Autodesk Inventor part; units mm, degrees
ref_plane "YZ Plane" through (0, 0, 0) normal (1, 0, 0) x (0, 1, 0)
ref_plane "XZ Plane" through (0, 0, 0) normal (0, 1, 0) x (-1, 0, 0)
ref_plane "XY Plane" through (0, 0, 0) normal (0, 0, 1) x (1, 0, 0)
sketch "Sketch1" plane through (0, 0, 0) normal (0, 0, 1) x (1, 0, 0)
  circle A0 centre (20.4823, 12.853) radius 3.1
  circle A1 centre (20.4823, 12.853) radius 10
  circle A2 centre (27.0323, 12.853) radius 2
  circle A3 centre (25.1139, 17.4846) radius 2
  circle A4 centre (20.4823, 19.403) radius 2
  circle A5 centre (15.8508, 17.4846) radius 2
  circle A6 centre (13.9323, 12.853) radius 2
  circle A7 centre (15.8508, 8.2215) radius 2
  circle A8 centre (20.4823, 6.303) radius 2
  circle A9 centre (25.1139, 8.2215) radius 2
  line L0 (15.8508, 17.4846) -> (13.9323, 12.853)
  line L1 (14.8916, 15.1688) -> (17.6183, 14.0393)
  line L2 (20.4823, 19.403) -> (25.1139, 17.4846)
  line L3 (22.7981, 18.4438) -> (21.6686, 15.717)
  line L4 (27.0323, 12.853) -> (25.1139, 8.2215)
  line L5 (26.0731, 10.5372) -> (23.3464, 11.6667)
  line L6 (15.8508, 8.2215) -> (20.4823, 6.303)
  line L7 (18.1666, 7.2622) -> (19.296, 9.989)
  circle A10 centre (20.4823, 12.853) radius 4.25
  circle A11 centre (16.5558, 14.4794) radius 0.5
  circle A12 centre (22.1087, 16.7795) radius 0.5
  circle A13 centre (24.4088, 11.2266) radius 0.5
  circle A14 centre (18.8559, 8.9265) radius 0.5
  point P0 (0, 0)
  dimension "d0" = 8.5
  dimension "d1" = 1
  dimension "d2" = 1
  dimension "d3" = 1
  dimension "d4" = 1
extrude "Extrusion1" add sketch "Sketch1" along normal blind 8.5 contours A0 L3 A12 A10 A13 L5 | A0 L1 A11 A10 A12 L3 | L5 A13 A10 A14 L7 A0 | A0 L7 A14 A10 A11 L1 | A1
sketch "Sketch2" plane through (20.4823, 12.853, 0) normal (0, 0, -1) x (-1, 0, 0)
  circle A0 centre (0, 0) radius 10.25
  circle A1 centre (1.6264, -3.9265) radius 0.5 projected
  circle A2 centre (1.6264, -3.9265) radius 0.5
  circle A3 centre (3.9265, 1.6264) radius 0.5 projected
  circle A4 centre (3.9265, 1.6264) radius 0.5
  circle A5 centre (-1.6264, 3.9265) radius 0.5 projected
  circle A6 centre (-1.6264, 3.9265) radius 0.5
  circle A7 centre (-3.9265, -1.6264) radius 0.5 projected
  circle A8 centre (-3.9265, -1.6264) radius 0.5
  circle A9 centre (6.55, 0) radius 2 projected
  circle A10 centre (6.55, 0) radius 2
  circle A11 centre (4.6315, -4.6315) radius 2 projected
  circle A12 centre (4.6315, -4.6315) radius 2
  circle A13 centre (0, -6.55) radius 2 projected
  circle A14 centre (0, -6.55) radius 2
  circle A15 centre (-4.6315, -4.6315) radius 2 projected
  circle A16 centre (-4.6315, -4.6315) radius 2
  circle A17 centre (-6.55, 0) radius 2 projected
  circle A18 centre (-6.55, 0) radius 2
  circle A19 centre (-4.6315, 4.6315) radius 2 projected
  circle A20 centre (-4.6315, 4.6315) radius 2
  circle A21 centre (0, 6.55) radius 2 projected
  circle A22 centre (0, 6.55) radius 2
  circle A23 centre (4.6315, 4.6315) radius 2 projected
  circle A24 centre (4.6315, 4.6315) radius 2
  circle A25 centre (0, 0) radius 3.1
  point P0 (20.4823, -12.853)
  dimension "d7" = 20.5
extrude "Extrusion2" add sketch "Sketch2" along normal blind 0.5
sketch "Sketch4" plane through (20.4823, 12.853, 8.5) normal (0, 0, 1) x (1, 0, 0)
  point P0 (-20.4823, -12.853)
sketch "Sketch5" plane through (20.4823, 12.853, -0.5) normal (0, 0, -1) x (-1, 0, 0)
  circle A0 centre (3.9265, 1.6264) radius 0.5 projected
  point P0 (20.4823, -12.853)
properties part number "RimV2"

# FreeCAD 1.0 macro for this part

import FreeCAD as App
import Part
import Sketcher
from FreeCAD import Vector
Q = App.Units.Quantity

doc = App.newDocument("Part")
params = doc.addObject("Spreadsheet::Sheet", "Params")
for row, (alias, value) in enumerate([
    ("sketch1_diameter", "1 mm"),
    ("sketch1_diameter2", "20 mm"),
    ("sketch1_diameter3", "4 mm"),
    ("sketch1_diameter4", "6.2 mm"),
    ("pad1_length", "8.5 mm"),
    ("sketch2_diameter", "20.5 mm"),
    ("sketch2_diameter2", "4 mm"),
    ("sketch2_diameter3", "1 mm"),
    ("sketch2_diameter4", "6.2 mm"),
    ("pad2_length", "0.5 mm"),
], start=1):
    params.set(f"A{row}", alias)
    params.set(f"B{row}", "=" + value)
    params.setAlias(f"B{row}", alias)

body = doc.addObject("PartDesign::Body", "Body")

# Sketch on XY plane
sketch1 = body.newObject("Sketcher::SketchObject", "Sketch")
sketch1.AttachmentSupport = (doc.getObject("XY_Plane"), [""])
sketch1.MapMode = "FlatFace"
sketch1.addGeometry([
    Part.Circle(Vector(20.5, 12.9, 0), Vector(0, 0, 1), 10),  # 0
    Part.Circle(Vector(20.5, 12.9, 0), Vector(0, 0, 1), 3.1),  # 1
    Part.Circle(Vector(22.1, 16.8, 0), Vector(0, 0, 1), 0.5),  # 2
    Part.Circle(Vector(24.4, 11.2, 0), Vector(0, 0, 1), 0.5),  # 3
    Part.Circle(Vector(16.6, 14.5, 0), Vector(0, 0, 1), 0.5),  # 4
    Part.Circle(Vector(15.9, 8.2, 0), Vector(0, 0, 1), 2),  # 5
    Part.Circle(Vector(20.5, 6.3, 0), Vector(0, 0, 1), 2),  # 6
    Part.Circle(Vector(25.1, 8.2, 0), Vector(0, 0, 1), 2),  # 7
    Part.Circle(Vector(13.9, 12.9, 0), Vector(0, 0, 1), 2),  # 8
    Part.Circle(Vector(15.9, 17.5, 0), Vector(0, 0, 1), 2),  # 9
    Part.Circle(Vector(18.9, 8.9, 0), Vector(0, 0, 1), 0.5),  # 10
    Part.Circle(Vector(25.1, 17.5, 0), Vector(0, 0, 1), 2),  # 11
    Part.Circle(Vector(27, 12.9, 0), Vector(0, 0, 1), 2),  # 12
    Part.Circle(Vector(20.5, 19.4, 0), Vector(0, 0, 1), 2),  # 13
], False)
sketch1.addConstraint([
    Sketcher.Constraint("Coincident", 1, 3, 0, 3),
    Sketcher.Constraint("Equal", 2, 3),
    Sketcher.Constraint("Equal", 3, 4),
    Sketcher.Constraint("Equal", 5, 6),
    Sketcher.Constraint("Equal", 6, 7),
    Sketcher.Constraint("Equal", 7, 8),
    Sketcher.Constraint("Equal", 8, 9),
    Sketcher.Constraint("Equal", 4, 10),
    Sketcher.Constraint("Equal", 9, 11),
    Sketcher.Constraint("Equal", 11, 12),
    Sketcher.Constraint("Equal", 12, 13),
    Sketcher.Constraint("Horizontal", 5, 3, 7, 3),
    Sketcher.Constraint("Horizontal", 1, 3, 8, 3),
    Sketcher.Constraint("Horizontal", 9, 3, 11, 3),
    Sketcher.Constraint("Horizontal", 8, 3, 12, 3),
    Sketcher.Constraint("Vertical", 1, 3, 6, 3),
    Sketcher.Constraint("Vertical", 5, 3, 9, 3),
    Sketcher.Constraint("Vertical", 7, 3, 11, 3),
    Sketcher.Constraint("Vertical", 6, 3, 13, 3),
    Sketcher.Constraint("Diameter", 2, Q("1 mm")),
    Sketcher.Constraint("Diameter", 0, Q("20 mm")),
    Sketcher.Constraint("Diameter", 5, Q("4 mm")),
    Sketcher.Constraint("Diameter", 1, Q("6.2 mm")),
    Sketcher.Constraint("DistanceX", 2, 3, 3, 3, Q("2.3 mm")),
    Sketcher.Constraint("DistanceY", 4, 3, 2, 3, Q("2.3 mm")),
    Sketcher.Constraint("DistanceX", 4, 3, 10, 3, Q("2.3 mm")),
    Sketcher.Constraint("DistanceY", 6, 3, 0, 3, Q("6.55 mm")),
    Sketcher.Constraint("DistanceX", 8, 3, 0, 3, Q("6.55 mm")),
    Sketcher.Constraint("DistanceX", 0, 3, 12, 3, Q("6.55 mm")),
    Sketcher.Constraint("DistanceY", 0, 3, 13, 3, Q("6.55 mm")),
    Sketcher.Constraint("DistanceY", -1, 1, 0, 3, Q("12.853 mm")),
    Sketcher.Constraint("DistanceX", -1, 1, 7, 3, Q("25.114 mm")),
    Sketcher.Constraint("DistanceX", -1, 1, 10, 3, Q("18.856 mm")),
    Sketcher.Constraint("DistanceY", 3, 3, 2, 3, Q("5.553 mm")),
    Sketcher.Constraint("DistanceX", 4, 3, 2, 3, Q("5.553 mm")),
    Sketcher.Constraint("DistanceX", 5, 3, 4, 3, Q("0.705 mm")),
    Sketcher.Constraint("DistanceY", 5, 3, 4, 3, Q("6.258 mm")),
    Sketcher.Constraint("DistanceY", 2, 3, 9, 3, Q("0.705 mm")),
    Sketcher.Constraint("DistanceY", 5, 3, 10, 3, Q("0.705 mm")),
    Sketcher.Constraint("DistanceX", -1, 1, 0, 3, Q("20.4823 mm")),
    Sketcher.Constraint("DistanceY", -1, 1, 2, 3, Q("16.7795 mm")),
])
sketch1.setExpression("Constraints[19]", "Params.sketch1_diameter")
sketch1.setExpression("Constraints[20]", "Params.sketch1_diameter2")
sketch1.setExpression("Constraints[21]", "Params.sketch1_diameter3")
sketch1.setExpression("Constraints[22]", "Params.sketch1_diameter4")
pad1 = body.newObject("PartDesign::Pad", "Pad")
pad1.Profile = sketch1
pad1.setExpression("Length", "Params.pad1_length")

# Sketch on XY plane
sketch2 = body.newObject("Sketcher::SketchObject", "Sketch001")
sketch2.AttachmentSupport = (doc.getObject("XY_Plane"), [""])
sketch2.MapMode = "FlatFace"
sketch2.addGeometry([
    Part.Circle(Vector(20.5, 12.9, 0), Vector(0, 0, 1), 10.2),  # 0
    Part.Circle(Vector(25.1, 8.2, 0), Vector(0, 0, 1), 2),  # 1
    Part.Circle(Vector(24.4, 11.2, 0), Vector(0, 0, 1), 0.5),  # 2
    Part.Circle(Vector(20.5, 6.3, 0), Vector(0, 0, 1), 2),  # 3
    Part.Circle(Vector(18.9, 8.9, 0), Vector(0, 0, 1), 0.5),  # 4
    Part.Circle(Vector(15.9, 8.2, 0), Vector(0, 0, 1), 2),  # 5
    Part.Circle(Vector(27, 12.9, 0), Vector(0, 0, 1), 2),  # 6
    Part.Circle(Vector(25.1, 17.5, 0), Vector(0, 0, 1), 2),  # 7
    Part.Circle(Vector(22.1, 16.8, 0), Vector(0, 0, 1), 0.5),  # 8
    Part.Circle(Vector(20.5, 12.9, 0), Vector(0, 0, 1), 3.1),  # 9
    Part.Circle(Vector(16.6, 14.5, 0), Vector(0, 0, 1), 0.5),  # 10
    Part.Circle(Vector(15.9, 17.5, 0), Vector(0, 0, 1), 2),  # 11
    Part.Circle(Vector(13.9, 12.9, 0), Vector(0, 0, 1), 2),  # 12
    Part.Circle(Vector(20.5, 19.4, 0), Vector(0, 0, 1), 2),  # 13
], False)
sketch2.addConstraint([
    Sketcher.Constraint("Coincident", 9, 3, 0, 3),
    Sketcher.Constraint("Equal", 1, 3),
    Sketcher.Constraint("Equal", 2, 4),
    Sketcher.Constraint("Equal", 3, 5),
    Sketcher.Constraint("Equal", 5, 6),
    Sketcher.Constraint("Equal", 6, 7),
    Sketcher.Constraint("Equal", 4, 8),
    Sketcher.Constraint("Equal", 8, 10),
    Sketcher.Constraint("Equal", 7, 11),
    Sketcher.Constraint("Equal", 11, 12),
    Sketcher.Constraint("Equal", 12, 13),
    Sketcher.Constraint("Horizontal", 1, 3, 5, 3),
    Sketcher.Constraint("Horizontal", 0, 3, 6, 3),
    Sketcher.Constraint("Horizontal", 7, 3, 11, 3),
    Sketcher.Constraint("Horizontal", 9, 3, 12, 3),
    Sketcher.Constraint("Vertical", 0, 3, 3, 3),
    Sketcher.Constraint("Vertical", 1, 3, 7, 3),
    Sketcher.Constraint("Vertical", 5, 3, 11, 3),
    Sketcher.Constraint("Vertical", 9, 3, 13, 3),
    Sketcher.Constraint("Diameter", 0, Q("20.5 mm")),
    Sketcher.Constraint("Diameter", 1, Q("4 mm")),
    Sketcher.Constraint("Diameter", 2, Q("1 mm")),
    Sketcher.Constraint("Diameter", 9, Q("6.2 mm")),
    Sketcher.Constraint("DistanceY", 4, 3, 2, 3, Q("2.3 mm")),
    Sketcher.Constraint("DistanceX", 8, 3, 2, 3, Q("2.3 mm")),
    Sketcher.Constraint("DistanceY", 10, 3, 8, 3, Q("2.3 mm")),
    Sketcher.Constraint("DistanceX", 10, 3, 4, 3, Q("2.3 mm")),
    Sketcher.Constraint("DistanceY", 3, 3, 0, 3, Q("6.55 mm")),
    Sketcher.Constraint("DistanceX", 0, 3, 6, 3, Q("6.55 mm")),
    Sketcher.Constraint("DistanceX", 12, 3, 0, 3, Q("6.55 mm")),
    Sketcher.Constraint("DistanceY", 0, 3, 13, 3, Q("6.55 mm")),
    Sketcher.Constraint("DistanceY", -1, 1, 0, 3, Q("12.853 mm")),
    Sketcher.Constraint("DistanceX", -1, 1, 4, 3, Q("18.856 mm")),
    Sketcher.Constraint("DistanceX", 2, 3, 1, 3, Q("0.705 mm")),
    Sketcher.Constraint("DistanceY", 1, 3, 2, 3, Q("3.005 mm")),
    Sketcher.Constraint("DistanceX", 4, 3, 2, 3, Q("5.553 mm")),
    Sketcher.Constraint("DistanceX", 5, 3, 4, 3, Q("3.005 mm")),
    Sketcher.Constraint("DistanceY", 2, 3, 7, 3, Q("6.258 mm")),
    Sketcher.Constraint("DistanceY", 8, 3, 7, 3, Q("0.705 mm")),
    Sketcher.Constraint("DistanceX", -1, 1, 0, 3, Q("20.4823 mm")),
    Sketcher.Constraint("DistanceY", -1, 1, 1, 3, Q("8.2215 mm")),
])
sketch2.setExpression("Constraints[19]", "Params.sketch2_diameter")
sketch2.setExpression("Constraints[20]", "Params.sketch2_diameter2")
sketch2.setExpression("Constraints[21]", "Params.sketch2_diameter3")
sketch2.setExpression("Constraints[22]", "Params.sketch2_diameter4")
pad2 = body.newObject("PartDesign::Pad", "Pad001")
pad2.Profile = sketch2
pad2.setExpression("Length", "Params.pad2_length")
pad2.Reversed = True

doc.recompute()
